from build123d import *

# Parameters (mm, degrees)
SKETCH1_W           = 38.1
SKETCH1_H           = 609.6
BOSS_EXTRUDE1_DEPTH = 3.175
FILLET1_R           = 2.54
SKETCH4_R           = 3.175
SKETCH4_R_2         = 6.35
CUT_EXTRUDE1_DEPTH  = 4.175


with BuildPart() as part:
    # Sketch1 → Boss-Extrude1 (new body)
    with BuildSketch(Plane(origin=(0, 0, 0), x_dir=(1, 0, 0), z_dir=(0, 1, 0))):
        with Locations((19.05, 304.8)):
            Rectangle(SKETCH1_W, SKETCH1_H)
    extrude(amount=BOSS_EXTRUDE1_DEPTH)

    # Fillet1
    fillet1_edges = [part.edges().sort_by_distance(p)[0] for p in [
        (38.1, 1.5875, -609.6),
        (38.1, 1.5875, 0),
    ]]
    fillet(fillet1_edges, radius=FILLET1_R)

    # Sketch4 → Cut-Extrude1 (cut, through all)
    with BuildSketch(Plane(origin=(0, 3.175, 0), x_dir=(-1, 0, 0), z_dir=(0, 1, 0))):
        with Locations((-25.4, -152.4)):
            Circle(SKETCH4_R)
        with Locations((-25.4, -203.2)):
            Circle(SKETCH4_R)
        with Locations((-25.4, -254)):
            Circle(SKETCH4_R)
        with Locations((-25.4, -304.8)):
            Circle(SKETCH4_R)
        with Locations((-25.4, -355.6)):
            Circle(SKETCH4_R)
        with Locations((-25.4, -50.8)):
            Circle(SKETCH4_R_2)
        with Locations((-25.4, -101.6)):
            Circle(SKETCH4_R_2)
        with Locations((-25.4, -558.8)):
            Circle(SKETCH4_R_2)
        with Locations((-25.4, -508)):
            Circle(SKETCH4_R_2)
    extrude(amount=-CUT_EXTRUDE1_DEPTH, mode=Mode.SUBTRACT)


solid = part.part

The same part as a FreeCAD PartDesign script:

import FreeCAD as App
import Part
import Sketcher

V = App.Vector
Q = App.Units.Quantity


def edges_at(feature, points):
    """Names of the edges that pass closest to the given points."""
    edges = feature.Shape.Edges
    near = lambda p: min(range(len(edges)), key=lambda i: edges[i].distToShape(Part.Vertex(*p))[0])
    return sorted({f"Edge{near(p) + 1}" for p in points})

doc = App.newDocument("Part")
body = doc.addObject("PartDesign::Body", "Body")

sketch1 = body.newObject("Sketcher::SketchObject", "Sketch")
sketch1.AttachmentSupport = (doc.getObject("XZ_Plane"), [""])
sketch1.MapMode = "FlatFace"
sketch1.addGeometry(Part.LineSegment(V(0, -609.6, 0), V(0, 0, 0)), False)
sketch1.addGeometry(Part.LineSegment(V(0, 0, 0), V(38.1, 0, 0)), False)
sketch1.addGeometry(Part.LineSegment(V(38.1, 0, 0), V(38.1, -609.6, 0)), False)
sketch1.addGeometry(Part.LineSegment(V(38.1, -609.6, 0), V(0, -609.6, 0)), False)
sketch1.addConstraint(Sketcher.Constraint("Coincident", 0, 2, 1, 1))
sketch1.addConstraint(Sketcher.Constraint("Coincident", 1, 2, 2, 1))
sketch1.addConstraint(Sketcher.Constraint("Coincident", 2, 2, 3, 1))
sketch1.addConstraint(Sketcher.Constraint("Coincident", 3, 2, 0, 1))
sketch1.addConstraint(Sketcher.Constraint("Vertical", 0))
sketch1.addConstraint(Sketcher.Constraint("Horizontal", 1))
sketch1.addConstraint(Sketcher.Constraint("Vertical", 2))
sketch1.addConstraint(Sketcher.Constraint("Horizontal", 3))
sketch1.addConstraint(Sketcher.Constraint("Coincident", 0, 2, -1, 1))
sketch1.addConstraint(Sketcher.Constraint("DistanceY", 0, 1, 0, 2, Q("24 in")))
sketch1.addConstraint(Sketcher.Constraint("DistanceX", 1, 1, 1, 2, Q("1.5 in")))
pad1 = body.newObject("PartDesign::Pad", "Pad")
pad1.Profile = sketch1
pad1.Length = Q("0.125 in")
pad1.Reversed = True
doc.recompute()

fillet = body.newObject("PartDesign::Fillet", "Fillet")
fillet.Base = (pad1, edges_at(pad1, [(38.1, 1.587, -609.6), (38.1, 1.587, 0)]))
fillet.Radius = Q("0.1 in")

sketch2 = body.newObject("Sketcher::SketchObject", "Sketch001")
sketch2.AttachmentSupport = (doc.getObject("XZ_Plane"), [""])
sketch2.MapMode = "FlatFace"
sketch2.AttachmentOffset = App.Placement(V(0, 0, -0.125 * 25.4), App.Rotation())
sketch2.addGeometry(Part.Circle(V(25.4, -152.4, 0), V(0, 0, 1), 3.175), False)
sketch2.addGeometry(Part.Circle(V(25.4, -203.2, 0), V(0, 0, 1), 3.175), False)
sketch2.addGeometry(Part.Circle(V(25.4, -254, 0), V(0, 0, 1), 3.175), False)
sketch2.addGeometry(Part.Circle(V(25.4, -304.8, 0), V(0, 0, 1), 3.175), False)
sketch2.addGeometry(Part.Circle(V(25.4, -355.6, 0), V(0, 0, 1), 3.175), False)
sketch2.addGeometry(Part.Circle(V(25.4, -50.8, 0), V(0, 0, 1), 6.35), False)
sketch2.addGeometry(Part.Circle(V(25.4, -101.6, 0), V(0, 0, 1), 6.35), False)
sketch2.addGeometry(Part.Circle(V(25.4, -558.8, 0), V(0, 0, 1), 6.35), False)
sketch2.addGeometry(Part.Circle(V(25.4, -508, 0), V(0, 0, 1), 6.35), False)
sketch2.addConstraint(Sketcher.Constraint("Equal", 0, 1))
sketch2.addConstraint(Sketcher.Constraint("Equal", 1, 2))
sketch2.addConstraint(Sketcher.Constraint("Equal", 2, 3))
sketch2.addConstraint(Sketcher.Constraint("Equal", 3, 4))
sketch2.addConstraint(Sketcher.Constraint("Equal", 5, 6))
sketch2.addConstraint(Sketcher.Constraint("Equal", 6, 7))
sketch2.addConstraint(Sketcher.Constraint("Equal", 7, 8))
sketch2.addConstraint(Sketcher.Constraint("Vertical", 0, 3, 1, 3))
sketch2.addConstraint(Sketcher.Constraint("Vertical", 1, 3, 2, 3))
sketch2.addConstraint(Sketcher.Constraint("Vertical", 2, 3, 3, 3))
sketch2.addConstraint(Sketcher.Constraint("Vertical", 3, 3, 4, 3))
sketch2.addConstraint(Sketcher.Constraint("Vertical", 4, 3, 5, 3))
sketch2.addConstraint(Sketcher.Constraint("Vertical", 5, 3, 6, 3))
sketch2.addConstraint(Sketcher.Constraint("Vertical", 6, 3, 7, 3))
sketch2.addConstraint(Sketcher.Constraint("Vertical", 7, 3, 8, 3))
sketch2.addConstraint(Sketcher.Constraint("Diameter", 5, Q("0.5 in")))
sketch2.addConstraint(Sketcher.Constraint("Diameter", 0, Q("0.25 in")))
sketch2.addConstraint(Sketcher.Constraint("DistanceX", -1, 1, 0, 3, Q("1 in")))
sketch2.addConstraint(Sketcher.Constraint("DistanceY", 0, 3, -1, 1, Q("6 in")))
sketch2.addConstraint(Sketcher.Constraint("DistanceY", 1, 3, -1, 1, Q("8 in")))
sketch2.addConstraint(Sketcher.Constraint("DistanceY", 2, 3, -1, 1, Q("10 in")))
sketch2.addConstraint(Sketcher.Constraint("DistanceY", 3, 3, -1, 1, Q("12 in")))
sketch2.addConstraint(Sketcher.Constraint("DistanceY", 4, 3, -1, 1, Q("14 in")))
sketch2.addConstraint(Sketcher.Constraint("DistanceY", 5, 3, -1, 1, Q("2 in")))
sketch2.addConstraint(Sketcher.Constraint("DistanceY", 6, 3, -1, 1, Q("4 in")))
sketch2.addConstraint(Sketcher.Constraint("DistanceY", 7, 3, -1, 1, Q("22 in")))
sketch2.addConstraint(Sketcher.Constraint("DistanceY", 8, 3, -1, 1, Q("20 in")))
pocket1 = body.newObject("PartDesign::Pocket", "Pocket")
pocket1.Profile = sketch2
pocket1.Type = "ThroughAll"
pocket1.Reversed = True

doc.recompute()
